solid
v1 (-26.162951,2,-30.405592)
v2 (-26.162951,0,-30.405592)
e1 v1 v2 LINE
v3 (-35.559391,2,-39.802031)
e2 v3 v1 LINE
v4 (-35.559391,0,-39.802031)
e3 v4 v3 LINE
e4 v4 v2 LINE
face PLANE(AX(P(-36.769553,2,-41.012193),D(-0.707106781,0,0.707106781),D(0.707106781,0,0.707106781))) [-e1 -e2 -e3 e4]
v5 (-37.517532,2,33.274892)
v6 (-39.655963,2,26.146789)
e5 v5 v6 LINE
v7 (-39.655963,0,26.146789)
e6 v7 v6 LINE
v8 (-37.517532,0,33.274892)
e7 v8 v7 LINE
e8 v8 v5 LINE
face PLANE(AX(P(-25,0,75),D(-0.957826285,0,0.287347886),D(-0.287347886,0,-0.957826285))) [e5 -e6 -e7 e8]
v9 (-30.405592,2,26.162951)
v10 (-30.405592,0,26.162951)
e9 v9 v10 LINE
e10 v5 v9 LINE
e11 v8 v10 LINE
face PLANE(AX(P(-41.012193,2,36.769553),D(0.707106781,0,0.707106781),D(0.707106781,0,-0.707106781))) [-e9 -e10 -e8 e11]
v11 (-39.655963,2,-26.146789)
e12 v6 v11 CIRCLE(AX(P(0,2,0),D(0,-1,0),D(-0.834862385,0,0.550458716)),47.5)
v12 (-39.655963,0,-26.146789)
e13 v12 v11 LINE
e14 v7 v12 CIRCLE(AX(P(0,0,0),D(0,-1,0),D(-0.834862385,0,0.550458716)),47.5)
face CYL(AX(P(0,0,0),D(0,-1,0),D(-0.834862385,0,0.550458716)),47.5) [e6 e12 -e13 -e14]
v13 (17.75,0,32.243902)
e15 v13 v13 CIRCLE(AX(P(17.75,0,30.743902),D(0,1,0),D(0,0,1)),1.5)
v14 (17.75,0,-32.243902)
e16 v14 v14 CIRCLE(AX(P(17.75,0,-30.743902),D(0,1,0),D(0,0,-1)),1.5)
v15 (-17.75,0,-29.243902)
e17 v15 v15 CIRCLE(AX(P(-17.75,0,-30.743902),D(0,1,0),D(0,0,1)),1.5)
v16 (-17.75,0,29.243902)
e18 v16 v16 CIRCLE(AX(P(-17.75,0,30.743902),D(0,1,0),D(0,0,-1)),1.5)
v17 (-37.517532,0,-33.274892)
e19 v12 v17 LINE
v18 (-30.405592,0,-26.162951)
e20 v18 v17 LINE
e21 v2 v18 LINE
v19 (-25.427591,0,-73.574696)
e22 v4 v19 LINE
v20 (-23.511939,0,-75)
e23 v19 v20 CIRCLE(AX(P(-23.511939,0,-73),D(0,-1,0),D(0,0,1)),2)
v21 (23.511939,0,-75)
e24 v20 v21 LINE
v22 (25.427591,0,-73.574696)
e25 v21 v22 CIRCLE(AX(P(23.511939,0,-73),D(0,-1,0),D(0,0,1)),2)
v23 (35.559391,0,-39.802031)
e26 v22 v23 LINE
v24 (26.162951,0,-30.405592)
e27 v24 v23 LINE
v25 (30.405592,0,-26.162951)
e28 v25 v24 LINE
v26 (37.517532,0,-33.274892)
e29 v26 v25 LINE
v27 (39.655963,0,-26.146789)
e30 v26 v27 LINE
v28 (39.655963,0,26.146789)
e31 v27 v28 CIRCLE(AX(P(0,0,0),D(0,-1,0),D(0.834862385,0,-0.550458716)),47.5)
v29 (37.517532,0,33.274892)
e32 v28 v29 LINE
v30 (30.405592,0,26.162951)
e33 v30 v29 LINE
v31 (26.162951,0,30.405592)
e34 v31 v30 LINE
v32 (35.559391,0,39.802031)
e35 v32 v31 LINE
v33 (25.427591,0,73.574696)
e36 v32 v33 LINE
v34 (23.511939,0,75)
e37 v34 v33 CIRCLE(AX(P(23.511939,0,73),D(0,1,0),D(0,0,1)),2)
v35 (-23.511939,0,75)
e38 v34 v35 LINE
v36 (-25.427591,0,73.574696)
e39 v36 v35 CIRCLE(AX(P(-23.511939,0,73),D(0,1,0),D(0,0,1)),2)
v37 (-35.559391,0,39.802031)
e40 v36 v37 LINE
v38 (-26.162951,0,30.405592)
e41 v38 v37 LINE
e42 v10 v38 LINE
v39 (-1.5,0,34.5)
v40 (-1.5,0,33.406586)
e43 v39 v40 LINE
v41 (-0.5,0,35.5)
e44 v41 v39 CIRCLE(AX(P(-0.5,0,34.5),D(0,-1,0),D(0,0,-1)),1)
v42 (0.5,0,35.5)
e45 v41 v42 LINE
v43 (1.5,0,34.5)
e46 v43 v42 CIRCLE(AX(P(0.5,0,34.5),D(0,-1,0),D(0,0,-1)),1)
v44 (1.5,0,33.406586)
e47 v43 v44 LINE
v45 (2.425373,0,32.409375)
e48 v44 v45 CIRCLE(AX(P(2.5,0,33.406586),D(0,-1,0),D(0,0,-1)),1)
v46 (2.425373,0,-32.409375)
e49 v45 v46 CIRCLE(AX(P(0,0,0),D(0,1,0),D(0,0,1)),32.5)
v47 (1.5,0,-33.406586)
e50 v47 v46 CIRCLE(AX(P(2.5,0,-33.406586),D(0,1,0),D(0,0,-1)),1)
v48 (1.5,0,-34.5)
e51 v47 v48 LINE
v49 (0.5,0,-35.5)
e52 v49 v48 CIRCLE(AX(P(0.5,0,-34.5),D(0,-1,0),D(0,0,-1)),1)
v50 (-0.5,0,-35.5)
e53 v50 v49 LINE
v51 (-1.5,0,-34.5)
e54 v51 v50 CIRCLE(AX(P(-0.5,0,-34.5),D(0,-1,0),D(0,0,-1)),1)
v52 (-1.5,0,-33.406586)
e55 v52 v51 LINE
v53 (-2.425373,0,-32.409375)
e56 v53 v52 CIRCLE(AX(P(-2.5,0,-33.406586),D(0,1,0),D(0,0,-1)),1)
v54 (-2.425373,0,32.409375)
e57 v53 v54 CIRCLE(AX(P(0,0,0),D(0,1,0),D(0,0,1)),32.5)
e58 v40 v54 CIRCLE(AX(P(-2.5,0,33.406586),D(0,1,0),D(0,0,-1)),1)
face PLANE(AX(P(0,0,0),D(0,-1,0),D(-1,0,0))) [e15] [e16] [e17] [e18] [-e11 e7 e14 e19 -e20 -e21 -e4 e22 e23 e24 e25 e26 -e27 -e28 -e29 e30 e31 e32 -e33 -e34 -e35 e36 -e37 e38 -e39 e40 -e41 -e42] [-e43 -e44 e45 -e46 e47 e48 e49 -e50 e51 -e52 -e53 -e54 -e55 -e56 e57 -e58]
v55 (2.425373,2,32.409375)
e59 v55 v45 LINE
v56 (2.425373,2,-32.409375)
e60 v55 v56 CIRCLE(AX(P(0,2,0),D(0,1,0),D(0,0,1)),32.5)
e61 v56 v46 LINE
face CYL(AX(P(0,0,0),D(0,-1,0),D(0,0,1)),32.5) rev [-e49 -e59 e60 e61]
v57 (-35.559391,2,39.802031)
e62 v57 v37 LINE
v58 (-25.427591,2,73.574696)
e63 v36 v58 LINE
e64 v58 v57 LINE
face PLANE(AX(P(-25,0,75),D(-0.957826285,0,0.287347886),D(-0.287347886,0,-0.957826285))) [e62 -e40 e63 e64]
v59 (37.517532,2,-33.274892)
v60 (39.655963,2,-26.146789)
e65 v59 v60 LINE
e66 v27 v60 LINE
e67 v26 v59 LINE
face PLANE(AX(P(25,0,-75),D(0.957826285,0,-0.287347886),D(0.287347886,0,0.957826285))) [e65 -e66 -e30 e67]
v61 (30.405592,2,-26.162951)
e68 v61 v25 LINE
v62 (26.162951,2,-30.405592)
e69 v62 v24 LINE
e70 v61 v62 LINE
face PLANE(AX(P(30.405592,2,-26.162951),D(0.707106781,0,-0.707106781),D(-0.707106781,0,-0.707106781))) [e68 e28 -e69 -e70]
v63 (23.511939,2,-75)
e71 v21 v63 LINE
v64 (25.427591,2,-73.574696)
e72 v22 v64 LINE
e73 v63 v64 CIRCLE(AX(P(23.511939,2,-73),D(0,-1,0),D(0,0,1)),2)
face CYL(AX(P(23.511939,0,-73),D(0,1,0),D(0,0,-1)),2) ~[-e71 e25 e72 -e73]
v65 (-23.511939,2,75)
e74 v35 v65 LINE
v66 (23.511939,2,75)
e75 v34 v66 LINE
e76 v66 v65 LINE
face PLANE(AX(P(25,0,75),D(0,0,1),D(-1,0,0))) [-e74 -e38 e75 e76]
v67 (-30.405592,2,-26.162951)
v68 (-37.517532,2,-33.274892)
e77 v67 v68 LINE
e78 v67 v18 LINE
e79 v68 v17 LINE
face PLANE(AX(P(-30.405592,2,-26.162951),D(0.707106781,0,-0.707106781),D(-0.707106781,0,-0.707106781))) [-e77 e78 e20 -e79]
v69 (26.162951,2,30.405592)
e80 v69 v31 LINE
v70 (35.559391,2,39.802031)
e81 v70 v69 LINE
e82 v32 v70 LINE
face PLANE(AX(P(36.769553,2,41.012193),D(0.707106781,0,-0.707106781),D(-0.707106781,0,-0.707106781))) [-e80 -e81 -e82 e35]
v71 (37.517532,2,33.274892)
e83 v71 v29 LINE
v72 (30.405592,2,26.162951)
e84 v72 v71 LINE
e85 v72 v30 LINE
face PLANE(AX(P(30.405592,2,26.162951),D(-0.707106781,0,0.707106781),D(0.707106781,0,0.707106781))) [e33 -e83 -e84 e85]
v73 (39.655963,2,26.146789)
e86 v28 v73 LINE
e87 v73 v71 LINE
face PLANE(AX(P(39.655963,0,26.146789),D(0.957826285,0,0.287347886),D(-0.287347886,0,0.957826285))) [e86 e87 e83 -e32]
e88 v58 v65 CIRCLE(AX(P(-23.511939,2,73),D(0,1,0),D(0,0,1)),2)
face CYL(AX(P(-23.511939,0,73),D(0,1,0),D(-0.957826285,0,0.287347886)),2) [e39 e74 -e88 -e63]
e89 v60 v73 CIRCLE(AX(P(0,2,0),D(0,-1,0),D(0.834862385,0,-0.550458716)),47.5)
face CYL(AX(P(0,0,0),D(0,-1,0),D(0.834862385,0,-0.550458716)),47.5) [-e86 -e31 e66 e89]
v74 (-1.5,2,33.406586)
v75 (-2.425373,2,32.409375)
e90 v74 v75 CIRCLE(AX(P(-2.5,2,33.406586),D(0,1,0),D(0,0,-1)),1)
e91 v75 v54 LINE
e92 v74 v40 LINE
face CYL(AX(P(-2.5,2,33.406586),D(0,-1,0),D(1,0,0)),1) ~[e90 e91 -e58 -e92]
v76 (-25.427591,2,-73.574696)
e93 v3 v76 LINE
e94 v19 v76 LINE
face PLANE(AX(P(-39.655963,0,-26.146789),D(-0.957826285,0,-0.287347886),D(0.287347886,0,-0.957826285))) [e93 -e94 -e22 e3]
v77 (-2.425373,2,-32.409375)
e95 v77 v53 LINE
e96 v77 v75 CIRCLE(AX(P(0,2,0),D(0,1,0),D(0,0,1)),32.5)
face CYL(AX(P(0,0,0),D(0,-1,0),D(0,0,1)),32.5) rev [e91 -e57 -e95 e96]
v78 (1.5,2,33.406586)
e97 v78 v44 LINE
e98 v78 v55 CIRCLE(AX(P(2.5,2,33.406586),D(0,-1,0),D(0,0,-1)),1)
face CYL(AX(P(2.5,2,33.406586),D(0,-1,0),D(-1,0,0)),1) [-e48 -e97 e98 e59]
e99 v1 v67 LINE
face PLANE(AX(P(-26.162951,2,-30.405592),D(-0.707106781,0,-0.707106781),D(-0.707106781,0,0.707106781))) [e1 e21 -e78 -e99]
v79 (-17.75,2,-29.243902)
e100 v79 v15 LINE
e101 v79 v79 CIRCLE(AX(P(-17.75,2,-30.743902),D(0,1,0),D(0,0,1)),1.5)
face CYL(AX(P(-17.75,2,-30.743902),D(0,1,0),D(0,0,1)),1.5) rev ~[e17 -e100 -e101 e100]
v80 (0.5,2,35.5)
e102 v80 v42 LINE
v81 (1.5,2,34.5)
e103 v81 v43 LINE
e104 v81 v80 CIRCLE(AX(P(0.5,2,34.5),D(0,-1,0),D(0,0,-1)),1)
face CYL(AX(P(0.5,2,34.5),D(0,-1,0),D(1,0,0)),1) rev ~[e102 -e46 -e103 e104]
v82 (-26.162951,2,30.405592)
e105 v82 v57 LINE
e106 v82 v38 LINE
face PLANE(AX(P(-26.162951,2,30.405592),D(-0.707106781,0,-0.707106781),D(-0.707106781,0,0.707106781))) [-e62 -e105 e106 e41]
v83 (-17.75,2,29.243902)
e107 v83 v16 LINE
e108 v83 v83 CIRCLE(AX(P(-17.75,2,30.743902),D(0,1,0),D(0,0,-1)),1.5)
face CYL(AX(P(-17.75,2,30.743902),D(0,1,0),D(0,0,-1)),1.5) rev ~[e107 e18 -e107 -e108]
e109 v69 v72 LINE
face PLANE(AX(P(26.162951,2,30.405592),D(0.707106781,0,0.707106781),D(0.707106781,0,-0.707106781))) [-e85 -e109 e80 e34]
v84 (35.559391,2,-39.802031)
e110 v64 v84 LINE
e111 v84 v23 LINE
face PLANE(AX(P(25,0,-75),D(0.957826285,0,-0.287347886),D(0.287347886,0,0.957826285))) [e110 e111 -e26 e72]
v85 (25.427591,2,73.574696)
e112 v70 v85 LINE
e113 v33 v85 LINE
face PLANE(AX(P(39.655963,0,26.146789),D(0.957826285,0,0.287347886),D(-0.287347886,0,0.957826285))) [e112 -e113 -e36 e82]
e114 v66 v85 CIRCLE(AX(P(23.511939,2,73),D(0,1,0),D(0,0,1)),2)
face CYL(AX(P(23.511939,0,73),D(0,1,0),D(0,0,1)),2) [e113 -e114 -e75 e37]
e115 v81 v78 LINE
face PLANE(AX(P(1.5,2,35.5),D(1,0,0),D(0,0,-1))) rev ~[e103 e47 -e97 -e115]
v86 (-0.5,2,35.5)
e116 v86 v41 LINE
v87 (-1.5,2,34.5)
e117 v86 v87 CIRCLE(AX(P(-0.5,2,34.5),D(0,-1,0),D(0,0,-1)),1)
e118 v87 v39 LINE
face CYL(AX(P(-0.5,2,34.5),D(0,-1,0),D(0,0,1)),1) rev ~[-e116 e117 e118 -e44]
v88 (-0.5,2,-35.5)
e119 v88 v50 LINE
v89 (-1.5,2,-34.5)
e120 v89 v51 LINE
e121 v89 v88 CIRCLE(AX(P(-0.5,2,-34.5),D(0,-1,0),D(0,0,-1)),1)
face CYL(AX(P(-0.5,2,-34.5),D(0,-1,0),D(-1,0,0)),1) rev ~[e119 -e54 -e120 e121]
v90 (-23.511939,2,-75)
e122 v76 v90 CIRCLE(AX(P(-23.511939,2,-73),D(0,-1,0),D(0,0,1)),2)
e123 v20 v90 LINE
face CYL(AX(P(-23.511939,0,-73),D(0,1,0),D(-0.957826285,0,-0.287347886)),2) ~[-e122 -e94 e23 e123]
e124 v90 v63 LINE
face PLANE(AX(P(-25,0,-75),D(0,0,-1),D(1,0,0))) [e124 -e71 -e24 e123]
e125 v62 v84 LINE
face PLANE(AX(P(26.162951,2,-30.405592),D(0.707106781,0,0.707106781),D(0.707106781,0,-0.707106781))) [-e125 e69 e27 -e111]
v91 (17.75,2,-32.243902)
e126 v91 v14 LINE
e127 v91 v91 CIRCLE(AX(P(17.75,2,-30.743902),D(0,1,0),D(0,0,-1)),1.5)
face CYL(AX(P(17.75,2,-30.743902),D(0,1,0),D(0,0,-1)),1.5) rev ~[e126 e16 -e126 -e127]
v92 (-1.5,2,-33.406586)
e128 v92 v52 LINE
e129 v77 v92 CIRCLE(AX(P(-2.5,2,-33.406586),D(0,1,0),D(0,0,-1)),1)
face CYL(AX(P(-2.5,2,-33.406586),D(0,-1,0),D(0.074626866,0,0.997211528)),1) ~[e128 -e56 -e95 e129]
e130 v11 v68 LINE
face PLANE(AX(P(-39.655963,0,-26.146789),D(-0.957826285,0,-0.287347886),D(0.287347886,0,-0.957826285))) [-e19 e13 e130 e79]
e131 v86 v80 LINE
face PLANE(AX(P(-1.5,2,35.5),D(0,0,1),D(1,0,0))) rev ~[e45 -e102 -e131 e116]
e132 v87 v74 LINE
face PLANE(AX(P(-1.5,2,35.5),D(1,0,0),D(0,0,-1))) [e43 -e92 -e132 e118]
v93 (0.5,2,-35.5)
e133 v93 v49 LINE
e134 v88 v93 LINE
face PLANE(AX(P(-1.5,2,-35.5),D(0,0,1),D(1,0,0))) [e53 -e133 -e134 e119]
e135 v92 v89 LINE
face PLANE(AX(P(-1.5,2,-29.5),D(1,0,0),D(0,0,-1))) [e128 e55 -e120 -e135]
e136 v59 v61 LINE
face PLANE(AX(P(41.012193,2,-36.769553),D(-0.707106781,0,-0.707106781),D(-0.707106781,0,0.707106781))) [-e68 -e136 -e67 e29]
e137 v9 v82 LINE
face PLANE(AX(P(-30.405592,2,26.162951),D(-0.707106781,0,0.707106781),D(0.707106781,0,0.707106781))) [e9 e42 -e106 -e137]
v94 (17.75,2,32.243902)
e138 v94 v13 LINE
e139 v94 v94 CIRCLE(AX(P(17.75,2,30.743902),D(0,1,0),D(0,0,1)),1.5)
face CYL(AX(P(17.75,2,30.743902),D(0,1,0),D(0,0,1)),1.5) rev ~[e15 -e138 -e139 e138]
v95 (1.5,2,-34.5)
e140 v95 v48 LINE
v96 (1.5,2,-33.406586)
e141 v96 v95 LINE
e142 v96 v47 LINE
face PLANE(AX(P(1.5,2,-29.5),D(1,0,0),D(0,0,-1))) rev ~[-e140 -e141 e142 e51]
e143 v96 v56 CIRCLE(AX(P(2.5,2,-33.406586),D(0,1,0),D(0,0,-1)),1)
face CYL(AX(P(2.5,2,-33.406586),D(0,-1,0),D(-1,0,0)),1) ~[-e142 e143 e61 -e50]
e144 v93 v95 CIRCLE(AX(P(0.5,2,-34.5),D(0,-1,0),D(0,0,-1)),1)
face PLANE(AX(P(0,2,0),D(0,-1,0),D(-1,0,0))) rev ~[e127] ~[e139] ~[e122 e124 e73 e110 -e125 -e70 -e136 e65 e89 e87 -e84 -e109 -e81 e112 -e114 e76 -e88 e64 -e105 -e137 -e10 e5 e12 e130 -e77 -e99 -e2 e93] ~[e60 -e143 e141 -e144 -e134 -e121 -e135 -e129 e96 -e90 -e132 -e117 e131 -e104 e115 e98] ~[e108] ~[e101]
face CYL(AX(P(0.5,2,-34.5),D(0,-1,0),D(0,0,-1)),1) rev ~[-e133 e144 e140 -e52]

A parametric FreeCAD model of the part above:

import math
import FreeCAD as App
import Part
import Sketcher
Q = App.Units.Quantity


def edges_at(feature, points):
    """Names of the edges that pass closest to the given points."""
    edges = feature.Shape.Edges
    near = lambda p: min(range(len(edges)), key=lambda i: edges[i].distToShape(Part.Vertex(*p))[0])
    return sorted({f"Edge{near(p) + 1}" for p in points})


def add_polygon(sketch, points):
    """Adds a closed chain of lines whose ends are joined by coincident constraints."""
    first, n = sketch.GeometryCount, len(points)
    for a, b in zip(points, points[1:] + points[:1]):
        sketch.addGeometry(Part.LineSegment(App.Vector(*a, 0), App.Vector(*b, 0)), False)
    for i in range(n):
        sketch.addConstraint(Sketcher.Constraint("Coincident", first + i, 2, first + (i + 1) % n, 1))

doc = App.newDocument("Part")
params = doc.addObject("Spreadsheet::Sheet", "Params")
for row, (alias, value) in enumerate([
    ("sketch1_diameter", "65 mm"),
    ("sketch1_radius", "47.5 mm"),
    ("sketch1_width", "50 mm"),
    ("pad1_length", "2 mm"),
    ("sketch2_length", "15 mm"),
    ("sketch2_length2", "6 mm"),
    ("pocket1_length", "2 mm"),
    ("sketch3_width", "3 mm"),
    ("sketch3_height", "6 mm"),
    ("pocket2_length", "2 mm"),
    ("fillet_radius", "1 mm"),
    ("fillet2_radius", "2 mm"),
    ("sketch4_diameter", "3 mm"),
    ("pocket3_length", "2 mm"),
], start=1):
    params.set(f"A{row}", alias)
    params.set(f"B{row}", "=" + value)
    params.setAlias(f"B{row}", alias)

body = doc.addObject("PartDesign::Body", "Body")

# Sketch on XZ plane
sketch1 = body.newObject("Sketcher::SketchObject", "Sketch")
sketch1.AttachmentSupport = (doc.getObject("XZ_Plane"), [""])
sketch1.MapMode = "FlatFace"
sketch1.addGeometry(Part.LineSegment(App.Vector(-25, -75, 0), App.Vector(-40, -26, 0)), False)
sketch1.addGeometry(Part.ArcOfCircle(Part.Circle(App.Vector(0, 0, 0), App.Vector(0, 0, 1), 48), math.radians(147), math.radians(213)), False)
sketch1.addGeometry(Part.LineSegment(App.Vector(-40, 26, 0), App.Vector(-25, 75, 0)), False)
sketch1.addGeometry(Part.LineSegment(App.Vector(-25, 75, 0), App.Vector(25, 75, 0)), False)
sketch1.addGeometry(Part.LineSegment(App.Vector(25, 75, 0), App.Vector(40, 26, 0)), False)
sketch1.addGeometry(Part.ArcOfCircle(Part.Circle(App.Vector(0, 0, 0), App.Vector(0, 0, 1), 48), math.radians(-33), math.radians(33)), False)
sketch1.addGeometry(Part.LineSegment(App.Vector(40, -26, 0), App.Vector(25, -75, 0)), False)
sketch1.addGeometry(Part.LineSegment(App.Vector(25, -75, 0), App.Vector(-25, -75, 0)), False)
sketch1.addGeometry(Part.Circle(App.Vector(0, 0, 0), App.Vector(0, 0, 1), 32), False)
sketch1.addConstraint(Sketcher.Constraint("Coincident", 0, 2, 1, 2))
sketch1.addConstraint(Sketcher.Constraint("Coincident", 1, 1, 2, 1))
sketch1.addConstraint(Sketcher.Constraint("Coincident", 2, 2, 3, 1))
sketch1.addConstraint(Sketcher.Constraint("Coincident", 3, 2, 4, 1))
sketch1.addConstraint(Sketcher.Constraint("Coincident", 4, 2, 5, 2))
sketch1.addConstraint(Sketcher.Constraint("Coincident", 5, 1, 6, 1))
sketch1.addConstraint(Sketcher.Constraint("Coincident", 6, 2, 7, 1))
sketch1.addConstraint(Sketcher.Constraint("Coincident", 7, 2, 0, 1))
sketch1.addConstraint(Sketcher.Constraint("Horizontal", 3))
sketch1.addConstraint(Sketcher.Constraint("Horizontal", 7))
sketch1.addConstraint(Sketcher.Constraint("Coincident", 1, 3, -1, 1))
sketch1.addConstraint(Sketcher.Constraint("Coincident", 5, 3, -1, 1))
sketch1.addConstraint(Sketcher.Constraint("Coincident", 8, 3, -1, 1))
sketch1.addConstraint(Sketcher.Constraint("Equal", 1, 5))
sketch1.addConstraint(Sketcher.Constraint("Symmetric", 2, 2, 6, 2, -1, 1))
sketch1.addConstraint(Sketcher.Constraint("Parallel", 0, 4))
sketch1.addConstraint(Sketcher.Constraint("Parallel", 2, 6))
sketch1.addConstraint(Sketcher.Constraint("Horizontal", 1, 1, 4, 2))
sketch1.addConstraint(Sketcher.Constraint("Horizontal", 0, 2, 5, 1))
sketch1.addConstraint(Sketcher.Constraint("Vertical", 3, 2, 6, 2))
sketch1.addConstraint(Sketcher.Constraint("Diameter", 8, Q("65 mm")))
sketch1.addConstraint(Sketcher.Constraint("Radius", 1, Q("47.5 mm")))
sketch1.addConstraint(Sketcher.Constraint("DistanceX", 3, 1, 3, 2, Q("50 mm")))
sketch1.addConstraint(Sketcher.Constraint("DistanceY", -1, 1, 2, 2, Q("75 mm")))
sketch1.addConstraint(Sketcher.Constraint("Distance", 0, Q("51.00425 mm")))
sketch1.setExpression("Constraints[20]", "Params.sketch1_diameter")
sketch1.setExpression("Constraints[21]", "Params.sketch1_radius")
sketch1.setExpression("Constraints[22]", "Params.sketch1_width")
pad1 = body.newObject("PartDesign::Pad", "Pad")
pad1.Profile = sketch1
pad1.setExpression("Length", "Params.pad1_length")
pad1.Reversed = True

# Sketch on XZ plane
sketch2 = body.newObject("Sketcher::SketchObject", "Sketch001")
sketch2.AttachmentSupport = (doc.getObject("XZ_Plane"), [""])
sketch2.MapMode = "FlatFace"
sketch2.AttachmentOffset = App.Placement(App.Vector(0, 0, -2), App.Rotation())
add_polygon(sketch2, [(30, -26), (41, -37), (37, -41), (26, -30)])  # lines 0-3
add_polygon(sketch2, [(-37, -41), (-41, -37), (-30, -26), (-26, -30)])  # lines 4-7
add_polygon(sketch2, [(26, 30), (37, 41), (41, 37), (30, 26)])  # lines 8-11
add_polygon(sketch2, [(-30, 26), (-41, 37), (-37, 41), (-26, 30)])  # lines 12-15
sketch2.addConstraint(Sketcher.Constraint("Symmetric", 7, 2, 8, 2, -1, 1))
sketch2.addConstraint(Sketcher.Constraint("Symmetric", 4, 2, 9, 2, -1, 1))
sketch2.addConstraint(Sketcher.Constraint("Symmetric", 5, 2, 10, 2, -1, 1))
sketch2.addConstraint(Sketcher.Constraint("Symmetric", 6, 2, 11, 2, -1, 1))
sketch2.addConstraint(Sketcher.Constraint("Symmetric", 0, 2, 12, 2, -1, 1))
sketch2.addConstraint(Sketcher.Constraint("Symmetric", 1, 2, 13, 2, -1, 1))
sketch2.addConstraint(Sketcher.Constraint("Symmetric", 2, 2, 14, 2, -1, 1))
sketch2.addConstraint(Sketcher.Constraint("Symmetric", 3, 2, 15, 2, -1, 1))
sketch2.addConstraint(Sketcher.Constraint("Symmetric", 0, 2, 4, 2, -2))
sketch2.addConstraint(Sketcher.Constraint("Symmetric", 3, 2, 5, 2, -2))
sketch2.addConstraint(Sketcher.Constraint("Symmetric", 2, 2, 6, 2, -2))
sketch2.addConstraint(Sketcher.Constraint("Symmetric", 1, 2, 7, 2, -2))
sketch2.addConstraint(Sketcher.Constraint("Perpendicular", 0, 1))
sketch2.addConstraint(Sketcher.Constraint("Perpendicular", 1, 2))
sketch2.addConstraint(Sketcher.Constraint("Perpendicular", 2, 3))
sketch2.addConstraint(Sketcher.Constraint("Perpendicular", 3, 4))
sketch2.addConstraint(Sketcher.Constraint("Distance", 0, Q("15 mm")))
sketch2.addConstraint(Sketcher.Constraint("Distance", 1, Q("6 mm")))
sketch2.addConstraint(Sketcher.Constraint("DistanceX", 6, 2, 2, 2, Q("52.325902 mm")))
sketch2.addConstraint(Sketcher.Constraint("DistanceY", 3, 2, 10, 2, Q("52.325902 mm")))
sketch2.setExpression("Constraints[32]", "Params.sketch2_length")
sketch2.setExpression("Constraints[33]", "Params.sketch2_length2")
pocket1 = body.newObject("PartDesign::Pocket", "Pocket")
pocket1.Profile = sketch2
pocket1.setExpression("Length", "Params.pocket1_length")
pocket1.Reversed = True

# Sketch on XZ plane
sketch3 = body.newObject("Sketcher::SketchObject", "Sketch002")
sketch3.AttachmentSupport = (doc.getObject("XZ_Plane"), [""])
sketch3.MapMode = "FlatFace"
sketch3.AttachmentOffset = App.Placement(App.Vector(0, 0, -2), App.Rotation())
add_polygon(sketch3, [(-1.5, -35.5), (-1.5, -29.5), (1.5, -29.5), (1.5, -35.5)])  # lines 0-3
add_polygon(sketch3, [(-1.5, 29.5), (-1.5, 35.5), (1.5, 35.5), (1.5, 29.5)])  # lines 4-7
sketch3.addConstraint(Sketcher.Constraint("Vertical", 0))
sketch3.addConstraint(Sketcher.Constraint("Horizontal", 1))
sketch3.addConstraint(Sketcher.Constraint("Vertical", 2))
sketch3.addConstraint(Sketcher.Constraint("Horizontal", 3))
sketch3.addConstraint(Sketcher.Constraint("Vertical", 4))
sketch3.addConstraint(Sketcher.Constraint("Horizontal", 5))
sketch3.addConstraint(Sketcher.Constraint("Vertical", 6))
sketch3.addConstraint(Sketcher.Constraint("Horizontal", 7))
sketch3.addConstraint(Sketcher.Constraint("Symmetric", 2, 2, 4, 2, -1, 1))
sketch3.addConstraint(Sketcher.Constraint("Symmetric", 0, 2, 6, 2, -1, 1))
sketch3.addConstraint(Sketcher.Constraint("Vertical", 3, 2, 4, 2))
sketch3.addConstraint(Sketcher.Constraint("DistanceX", 1, 1, 1, 2, Q("3 mm")))
sketch3.addConstraint(Sketcher.Constraint("DistanceY", 0, 1, 0, 2, Q("6 mm")))
sketch3.addConstraint(Sketcher.Constraint("DistanceY", 0, 2, 4, 2, Q("65 mm")))
sketch3.setExpression("Constraints[19]", "Params.sketch3_width")
sketch3.setExpression("Constraints[20]", "Params.sketch3_height")
pocket2 = body.newObject("PartDesign::Pocket", "Pocket001")
pocket2.Profile = sketch3
pocket2.setExpression("Length", "Params.pocket2_length")
pocket2.Reversed = True
doc.recompute()

fillet = body.newObject("PartDesign::Fillet", "Fillet")
fillet.Base = (pocket2, edges_at(pocket2, [
    (-1.5, 1, -32.465),
    (1.5, 1, -32.465),
    (1.5, 1, -35.5),
    (-1.5, 1, -35.5),
    (1.5, 1, 32.465),
    (-1.5, 1, 32.465),
    (-1.5, 1, 35.5),
    (1.5, 1, 35.5),
]))
fillet.setExpression("Radius", "Params.fillet_radius")
doc.recompute()

fillet2 = body.newObject("PartDesign::Fillet", "Fillet001")
fillet2.Base = (fillet, edges_at(fillet, [
    (25, 1, 75),
    (-25, 1, 75),
    (-25, 1, -75),
    (25, 1, -75),
]))
fillet2.setExpression("Radius", "Params.fillet2_radius")

# Sketch on XZ plane
sketch4 = body.newObject("Sketcher::SketchObject", "Sketch003")
sketch4.AttachmentSupport = (doc.getObject("XZ_Plane"), [""])
sketch4.MapMode = "FlatFace"
sketch4.AttachmentOffset = App.Placement(App.Vector(0, 0, -2), App.Rotation())
sketch4.addGeometry(Part.Circle(App.Vector(-17.8, -30.7, 0), App.Vector(0, 0, 1), 1.5), False)
sketch4.addGeometry(Part.Circle(App.Vector(17.8, -30.7, 0), App.Vector(0, 0, 1), 1.5), False)
sketch4.addGeometry(Part.Circle(App.Vector(17.8, 30.7, 0), App.Vector(0, 0, 1), 1.5), False)
sketch4.addGeometry(Part.Circle(App.Vector(-17.8, 30.7, 0), App.Vector(0, 0, 1), 1.5), False)
sketch4.addConstraint(Sketcher.Constraint("Equal", 0, 1))
sketch4.addConstraint(Sketcher.Constraint("Equal", 1, 2))
sketch4.addConstraint(Sketcher.Constraint("Equal", 2, 3))
sketch4.addConstraint(Sketcher.Constraint("Symmetric", 0, 3, 2, 3, -1, 1))
sketch4.addConstraint(Sketcher.Constraint("Symmetric", 1, 3, 3, 3, -1, 1))
sketch4.addConstraint(Sketcher.Constraint("Symmetric", 0, 3, 1, 3, -2))
sketch4.addConstraint(Sketcher.Constraint("Diameter", 0, Q("3 mm")))
sketch4.addConstraint(Sketcher.Constraint("DistanceX", 0, 3, 1, 3, Q("35.5 mm")))
sketch4.addConstraint(Sketcher.Constraint("DistanceY", 0, 3, -1, 1, Q("30.743902 mm")))
sketch4.setExpression("Constraints[6]", "Params.sketch4_diameter")
pocket3 = body.newObject("PartDesign::Pocket", "Pocket002")
pocket3.Profile = sketch4
pocket3.setExpression("Length", "Params.pocket3_length")
pocket3.Reversed = True

doc.recompute()
